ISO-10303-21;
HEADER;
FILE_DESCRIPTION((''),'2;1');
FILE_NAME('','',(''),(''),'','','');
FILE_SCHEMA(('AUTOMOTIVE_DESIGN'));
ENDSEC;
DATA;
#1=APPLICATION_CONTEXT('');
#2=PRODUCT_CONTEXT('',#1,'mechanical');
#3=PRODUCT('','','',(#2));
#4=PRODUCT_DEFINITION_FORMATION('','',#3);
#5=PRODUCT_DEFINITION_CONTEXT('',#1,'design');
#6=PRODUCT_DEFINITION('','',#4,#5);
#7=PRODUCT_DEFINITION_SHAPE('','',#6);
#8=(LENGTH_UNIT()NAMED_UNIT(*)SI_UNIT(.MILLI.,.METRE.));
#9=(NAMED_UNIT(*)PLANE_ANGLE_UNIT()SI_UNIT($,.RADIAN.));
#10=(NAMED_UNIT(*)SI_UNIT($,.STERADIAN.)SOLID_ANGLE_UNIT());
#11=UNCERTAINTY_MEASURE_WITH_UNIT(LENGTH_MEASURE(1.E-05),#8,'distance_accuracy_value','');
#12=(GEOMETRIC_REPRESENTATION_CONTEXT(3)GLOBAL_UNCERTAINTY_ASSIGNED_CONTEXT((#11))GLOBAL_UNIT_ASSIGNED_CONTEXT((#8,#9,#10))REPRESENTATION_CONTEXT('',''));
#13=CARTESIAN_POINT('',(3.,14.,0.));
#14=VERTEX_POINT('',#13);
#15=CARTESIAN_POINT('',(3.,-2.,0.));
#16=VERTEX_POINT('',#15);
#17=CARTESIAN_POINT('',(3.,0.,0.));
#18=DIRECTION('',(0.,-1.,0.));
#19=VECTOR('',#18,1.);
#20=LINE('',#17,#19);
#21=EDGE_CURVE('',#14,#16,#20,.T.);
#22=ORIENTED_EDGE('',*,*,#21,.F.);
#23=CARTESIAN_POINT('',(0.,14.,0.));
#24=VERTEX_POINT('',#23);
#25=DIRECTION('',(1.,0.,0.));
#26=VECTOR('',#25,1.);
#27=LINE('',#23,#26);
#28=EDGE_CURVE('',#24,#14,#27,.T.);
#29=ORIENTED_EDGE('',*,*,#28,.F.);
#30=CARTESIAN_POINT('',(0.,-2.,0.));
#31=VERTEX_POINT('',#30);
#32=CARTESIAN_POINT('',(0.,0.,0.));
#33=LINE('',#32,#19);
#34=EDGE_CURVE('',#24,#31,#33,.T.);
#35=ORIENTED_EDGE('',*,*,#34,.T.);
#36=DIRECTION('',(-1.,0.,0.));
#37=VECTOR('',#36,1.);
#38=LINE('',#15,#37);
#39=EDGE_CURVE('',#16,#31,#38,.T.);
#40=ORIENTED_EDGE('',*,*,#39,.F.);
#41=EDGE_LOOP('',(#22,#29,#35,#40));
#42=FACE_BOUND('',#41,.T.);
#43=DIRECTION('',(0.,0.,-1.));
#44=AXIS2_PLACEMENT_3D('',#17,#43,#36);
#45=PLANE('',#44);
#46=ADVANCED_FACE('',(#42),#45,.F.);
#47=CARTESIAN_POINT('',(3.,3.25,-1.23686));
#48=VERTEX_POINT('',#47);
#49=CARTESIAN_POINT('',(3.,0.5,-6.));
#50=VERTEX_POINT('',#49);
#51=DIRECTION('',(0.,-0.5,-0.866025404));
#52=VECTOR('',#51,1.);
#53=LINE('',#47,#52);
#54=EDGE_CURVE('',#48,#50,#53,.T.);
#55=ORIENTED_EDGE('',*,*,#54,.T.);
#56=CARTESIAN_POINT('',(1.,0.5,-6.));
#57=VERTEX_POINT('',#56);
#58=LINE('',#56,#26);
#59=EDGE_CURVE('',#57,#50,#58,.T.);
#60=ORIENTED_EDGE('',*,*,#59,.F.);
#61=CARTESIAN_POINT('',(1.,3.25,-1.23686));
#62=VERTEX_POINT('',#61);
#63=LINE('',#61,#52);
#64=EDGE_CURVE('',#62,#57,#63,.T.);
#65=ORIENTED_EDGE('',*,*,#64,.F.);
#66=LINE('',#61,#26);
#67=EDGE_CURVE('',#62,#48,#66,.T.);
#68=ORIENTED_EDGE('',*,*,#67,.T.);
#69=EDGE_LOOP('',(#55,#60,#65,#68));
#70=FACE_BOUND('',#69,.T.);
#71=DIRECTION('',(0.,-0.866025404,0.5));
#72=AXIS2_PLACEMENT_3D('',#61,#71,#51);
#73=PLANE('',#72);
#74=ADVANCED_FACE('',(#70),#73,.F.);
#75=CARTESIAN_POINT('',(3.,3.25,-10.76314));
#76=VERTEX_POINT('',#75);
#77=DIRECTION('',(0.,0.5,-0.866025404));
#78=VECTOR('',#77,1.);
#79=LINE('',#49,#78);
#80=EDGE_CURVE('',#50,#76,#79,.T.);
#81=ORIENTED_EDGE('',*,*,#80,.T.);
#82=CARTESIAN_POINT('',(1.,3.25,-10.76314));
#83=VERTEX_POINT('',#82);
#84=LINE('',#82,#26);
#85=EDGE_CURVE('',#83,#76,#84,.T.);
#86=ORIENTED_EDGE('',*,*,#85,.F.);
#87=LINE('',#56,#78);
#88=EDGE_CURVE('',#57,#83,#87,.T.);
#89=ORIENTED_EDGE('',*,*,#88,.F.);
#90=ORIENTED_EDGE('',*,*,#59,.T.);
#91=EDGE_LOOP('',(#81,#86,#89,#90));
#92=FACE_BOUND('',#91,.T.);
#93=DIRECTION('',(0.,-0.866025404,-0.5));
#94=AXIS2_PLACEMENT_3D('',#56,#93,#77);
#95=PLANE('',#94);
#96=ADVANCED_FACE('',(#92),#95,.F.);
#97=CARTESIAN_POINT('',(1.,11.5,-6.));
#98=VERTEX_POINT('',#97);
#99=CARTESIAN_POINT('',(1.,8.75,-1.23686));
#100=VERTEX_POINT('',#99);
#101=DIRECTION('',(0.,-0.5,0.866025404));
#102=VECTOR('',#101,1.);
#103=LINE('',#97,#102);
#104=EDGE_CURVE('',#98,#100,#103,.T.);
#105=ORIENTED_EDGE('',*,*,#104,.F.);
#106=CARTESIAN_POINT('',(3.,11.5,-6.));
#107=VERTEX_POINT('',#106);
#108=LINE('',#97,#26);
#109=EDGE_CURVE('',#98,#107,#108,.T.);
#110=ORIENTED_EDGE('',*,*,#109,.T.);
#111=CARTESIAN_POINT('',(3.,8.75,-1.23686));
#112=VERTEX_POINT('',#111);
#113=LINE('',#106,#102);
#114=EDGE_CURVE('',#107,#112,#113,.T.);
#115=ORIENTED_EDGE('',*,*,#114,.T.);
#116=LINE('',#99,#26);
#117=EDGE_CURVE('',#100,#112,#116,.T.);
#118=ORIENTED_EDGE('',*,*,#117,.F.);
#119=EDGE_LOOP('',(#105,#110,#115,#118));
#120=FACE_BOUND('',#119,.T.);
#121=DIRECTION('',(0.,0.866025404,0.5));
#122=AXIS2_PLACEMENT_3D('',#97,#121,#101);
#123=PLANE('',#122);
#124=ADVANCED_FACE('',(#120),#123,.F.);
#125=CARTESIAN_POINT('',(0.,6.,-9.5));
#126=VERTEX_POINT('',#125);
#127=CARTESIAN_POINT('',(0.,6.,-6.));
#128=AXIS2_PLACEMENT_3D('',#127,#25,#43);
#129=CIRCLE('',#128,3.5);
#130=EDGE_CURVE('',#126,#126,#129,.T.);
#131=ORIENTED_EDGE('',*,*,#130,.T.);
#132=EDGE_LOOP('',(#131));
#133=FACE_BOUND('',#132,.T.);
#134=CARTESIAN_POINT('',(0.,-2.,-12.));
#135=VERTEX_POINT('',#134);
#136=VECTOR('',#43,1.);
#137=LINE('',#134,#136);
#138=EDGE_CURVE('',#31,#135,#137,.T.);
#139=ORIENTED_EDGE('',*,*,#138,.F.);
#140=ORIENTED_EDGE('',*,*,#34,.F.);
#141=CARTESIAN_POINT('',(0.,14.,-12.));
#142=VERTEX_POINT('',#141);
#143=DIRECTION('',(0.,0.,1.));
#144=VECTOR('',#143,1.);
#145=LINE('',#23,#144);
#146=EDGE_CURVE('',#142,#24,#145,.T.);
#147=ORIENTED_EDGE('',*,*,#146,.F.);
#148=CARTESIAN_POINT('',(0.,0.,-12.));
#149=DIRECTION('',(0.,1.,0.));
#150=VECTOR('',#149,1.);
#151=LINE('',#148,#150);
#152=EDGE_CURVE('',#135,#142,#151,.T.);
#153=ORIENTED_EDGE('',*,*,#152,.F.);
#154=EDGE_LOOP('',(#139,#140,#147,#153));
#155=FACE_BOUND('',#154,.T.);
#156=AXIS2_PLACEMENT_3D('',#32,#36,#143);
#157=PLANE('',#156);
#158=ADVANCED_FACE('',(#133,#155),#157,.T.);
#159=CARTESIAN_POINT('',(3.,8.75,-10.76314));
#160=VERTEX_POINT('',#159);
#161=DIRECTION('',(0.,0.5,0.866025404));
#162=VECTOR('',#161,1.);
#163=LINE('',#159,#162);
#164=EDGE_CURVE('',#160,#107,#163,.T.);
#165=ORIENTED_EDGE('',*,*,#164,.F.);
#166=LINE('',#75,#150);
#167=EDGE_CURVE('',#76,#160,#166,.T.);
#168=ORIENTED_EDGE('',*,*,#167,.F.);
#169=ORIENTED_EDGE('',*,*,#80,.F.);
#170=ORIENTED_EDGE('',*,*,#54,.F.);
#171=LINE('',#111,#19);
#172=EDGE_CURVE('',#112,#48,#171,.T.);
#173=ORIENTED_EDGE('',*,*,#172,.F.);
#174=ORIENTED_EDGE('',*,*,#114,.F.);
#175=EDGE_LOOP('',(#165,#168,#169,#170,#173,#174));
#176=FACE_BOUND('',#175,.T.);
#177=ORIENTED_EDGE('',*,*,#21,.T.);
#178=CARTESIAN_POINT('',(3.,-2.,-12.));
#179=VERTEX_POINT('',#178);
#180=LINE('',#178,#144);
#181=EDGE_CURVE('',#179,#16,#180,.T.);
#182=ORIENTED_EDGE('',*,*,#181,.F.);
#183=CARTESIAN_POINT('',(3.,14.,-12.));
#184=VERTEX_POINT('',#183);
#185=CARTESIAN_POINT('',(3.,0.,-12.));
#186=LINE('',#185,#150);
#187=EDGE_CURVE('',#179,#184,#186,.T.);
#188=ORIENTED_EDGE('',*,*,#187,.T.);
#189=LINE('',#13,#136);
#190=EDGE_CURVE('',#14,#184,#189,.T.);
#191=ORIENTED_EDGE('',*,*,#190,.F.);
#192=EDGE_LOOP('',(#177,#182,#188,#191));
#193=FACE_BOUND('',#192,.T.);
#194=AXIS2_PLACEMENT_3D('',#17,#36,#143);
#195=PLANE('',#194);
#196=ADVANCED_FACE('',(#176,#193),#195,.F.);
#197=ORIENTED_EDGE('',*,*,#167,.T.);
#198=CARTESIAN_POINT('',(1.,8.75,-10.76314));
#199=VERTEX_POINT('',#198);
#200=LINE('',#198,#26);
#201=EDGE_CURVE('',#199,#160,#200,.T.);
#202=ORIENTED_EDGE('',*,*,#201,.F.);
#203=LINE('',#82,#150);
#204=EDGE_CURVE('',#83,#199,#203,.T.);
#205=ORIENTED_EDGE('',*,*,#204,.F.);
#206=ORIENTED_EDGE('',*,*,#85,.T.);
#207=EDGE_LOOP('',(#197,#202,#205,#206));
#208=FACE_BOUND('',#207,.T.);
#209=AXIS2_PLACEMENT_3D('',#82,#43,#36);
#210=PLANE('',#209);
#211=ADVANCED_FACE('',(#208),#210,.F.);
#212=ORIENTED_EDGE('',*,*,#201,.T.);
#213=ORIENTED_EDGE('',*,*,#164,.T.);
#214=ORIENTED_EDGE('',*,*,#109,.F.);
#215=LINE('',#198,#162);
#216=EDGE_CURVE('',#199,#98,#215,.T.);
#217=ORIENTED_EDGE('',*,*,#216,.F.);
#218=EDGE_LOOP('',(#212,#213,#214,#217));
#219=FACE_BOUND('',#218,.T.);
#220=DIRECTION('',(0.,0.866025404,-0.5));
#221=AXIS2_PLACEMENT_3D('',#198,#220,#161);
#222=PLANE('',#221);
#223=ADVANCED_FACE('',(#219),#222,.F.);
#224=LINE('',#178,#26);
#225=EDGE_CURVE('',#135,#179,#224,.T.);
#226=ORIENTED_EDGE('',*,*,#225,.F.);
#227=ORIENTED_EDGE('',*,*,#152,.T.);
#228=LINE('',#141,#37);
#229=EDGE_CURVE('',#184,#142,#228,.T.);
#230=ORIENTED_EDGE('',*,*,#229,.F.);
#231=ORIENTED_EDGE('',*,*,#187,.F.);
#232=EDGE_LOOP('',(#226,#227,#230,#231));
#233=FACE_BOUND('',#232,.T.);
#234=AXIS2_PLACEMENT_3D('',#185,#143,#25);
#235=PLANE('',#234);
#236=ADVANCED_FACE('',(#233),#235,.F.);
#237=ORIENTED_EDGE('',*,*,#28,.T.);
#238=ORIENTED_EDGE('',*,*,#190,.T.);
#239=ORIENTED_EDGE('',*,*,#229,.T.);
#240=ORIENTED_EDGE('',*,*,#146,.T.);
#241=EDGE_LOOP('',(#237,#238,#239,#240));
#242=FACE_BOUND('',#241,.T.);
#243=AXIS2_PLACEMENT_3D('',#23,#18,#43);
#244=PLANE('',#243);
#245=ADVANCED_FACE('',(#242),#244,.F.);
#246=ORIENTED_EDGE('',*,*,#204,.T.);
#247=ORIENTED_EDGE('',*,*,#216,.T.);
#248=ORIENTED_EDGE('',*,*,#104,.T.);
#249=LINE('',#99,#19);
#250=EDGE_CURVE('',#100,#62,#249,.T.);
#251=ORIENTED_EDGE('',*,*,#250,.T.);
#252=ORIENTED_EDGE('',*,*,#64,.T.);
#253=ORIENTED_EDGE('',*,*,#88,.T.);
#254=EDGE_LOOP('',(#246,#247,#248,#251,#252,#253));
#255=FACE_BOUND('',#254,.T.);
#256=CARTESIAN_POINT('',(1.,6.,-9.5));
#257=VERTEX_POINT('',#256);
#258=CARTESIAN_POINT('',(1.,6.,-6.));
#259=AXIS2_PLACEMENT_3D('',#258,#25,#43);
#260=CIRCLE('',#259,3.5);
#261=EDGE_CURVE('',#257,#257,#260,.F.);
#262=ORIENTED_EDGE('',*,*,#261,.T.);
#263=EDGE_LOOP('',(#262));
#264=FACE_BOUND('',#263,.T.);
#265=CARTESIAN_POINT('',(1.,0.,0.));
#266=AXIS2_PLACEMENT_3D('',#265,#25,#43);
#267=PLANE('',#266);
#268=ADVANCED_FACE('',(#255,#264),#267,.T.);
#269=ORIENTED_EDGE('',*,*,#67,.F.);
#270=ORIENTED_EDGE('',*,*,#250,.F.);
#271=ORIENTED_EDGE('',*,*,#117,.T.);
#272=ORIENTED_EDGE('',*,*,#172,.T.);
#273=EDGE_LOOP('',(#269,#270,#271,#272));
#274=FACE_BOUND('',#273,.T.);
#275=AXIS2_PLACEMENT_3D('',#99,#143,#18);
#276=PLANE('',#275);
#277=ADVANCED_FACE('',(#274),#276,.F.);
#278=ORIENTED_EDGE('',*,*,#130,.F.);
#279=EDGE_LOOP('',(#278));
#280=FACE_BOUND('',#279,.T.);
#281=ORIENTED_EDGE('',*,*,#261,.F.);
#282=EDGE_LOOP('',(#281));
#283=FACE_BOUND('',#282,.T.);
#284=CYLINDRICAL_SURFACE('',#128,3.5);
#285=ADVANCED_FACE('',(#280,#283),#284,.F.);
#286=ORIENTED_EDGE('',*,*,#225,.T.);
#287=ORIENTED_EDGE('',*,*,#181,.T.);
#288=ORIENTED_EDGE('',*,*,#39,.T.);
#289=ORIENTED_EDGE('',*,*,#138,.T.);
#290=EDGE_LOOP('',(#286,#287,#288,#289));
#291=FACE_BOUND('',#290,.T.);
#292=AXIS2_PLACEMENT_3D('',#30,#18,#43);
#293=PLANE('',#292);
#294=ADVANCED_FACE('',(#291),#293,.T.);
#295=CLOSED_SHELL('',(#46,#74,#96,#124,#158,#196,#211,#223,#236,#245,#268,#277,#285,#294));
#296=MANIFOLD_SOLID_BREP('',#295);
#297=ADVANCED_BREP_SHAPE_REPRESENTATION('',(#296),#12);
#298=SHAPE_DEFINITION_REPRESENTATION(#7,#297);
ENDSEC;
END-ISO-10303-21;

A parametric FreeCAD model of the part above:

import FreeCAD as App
import Part
import Sketcher
from FreeCAD import Vector
Q = App.Units.Quantity

doc = App.newDocument("Part")
body = doc.addObject("PartDesign::Body", "Body")

# Sketch on YZ plane
sketch1 = body.newObject("Sketcher::SketchObject", "Sketch")
sketch1.AttachmentSupport = (doc.getObject("YZ_Plane"), [""])
sketch1.MapMode = "FlatFace"
sketch1.addGeometry([
    Part.LineSegment(Vector(12, 0, 0), Vector(0, 0, 0)),
    Part.LineSegment(Vector(0, 0, 0), Vector(0, -12, 0)),
    Part.LineSegment(Vector(0, -12, 0), Vector(12, -12, 0)),
    Part.LineSegment(Vector(12, -12, 0), Vector(12, 0, 0)),
], False)
sketch1.addConstraint([
    Sketcher.Constraint("Coincident", 0, 2, 1, 1),
    Sketcher.Constraint("Coincident", 1, 2, 2, 1),
    Sketcher.Constraint("Coincident", 2, 2, 3, 1),
    Sketcher.Constraint("Coincident", 3, 2, 0, 1),
    Sketcher.Constraint("Horizontal", 0),
    Sketcher.Constraint("Vertical", 1),
    Sketcher.Constraint("Horizontal", 2),
    Sketcher.Constraint("Vertical", 3),
    Sketcher.Constraint("Coincident", 0, 2, -1, 1),
    Sketcher.Constraint("Equal", 2, 1),
    Sketcher.Constraint("DistanceX", 0, 2, 0, 1, 12.0),
])
pad1 = body.newObject("PartDesign::Pad", "Pad")
pad1.Profile = sketch1
pad1.Length = 3

# Sketch on YZ plane
sketch2 = body.newObject("Sketcher::SketchObject", "Sketch001")
sketch2.AttachmentSupport = (doc.getObject("YZ_Plane"), [""])
sketch2.MapMode = "FlatFace"
sketch2.AttachmentOffset = App.Placement(Vector(0, 0, 3), App.Rotation())
sketch2.addGeometry(Part.Circle(Vector(6, -6, 0), Vector(0, 0, 1), 3.5), False)
sketch2.addConstraint([
    Sketcher.Constraint("Diameter", 0, 7.0),
    Sketcher.Constraint("DistanceX", -1, 1, 0, 3, 6.0),
    Sketcher.Constraint("DistanceY", 0, 3, -1, 1, 6.0),
])
pocket1 = body.newObject("PartDesign::Pocket", "Pocket")
pocket1.Profile = sketch2
pocket1.Length = 3

# Sketch on YZ plane
sketch3 = body.newObject("Sketcher::SketchObject", "Sketch002")
sketch3.AttachmentSupport = (doc.getObject("YZ_Plane"), [""])
sketch3.MapMode = "FlatFace"
sketch3.AttachmentOffset = App.Placement(Vector(0, 0, 3), App.Rotation())
sketch3.addGeometry([
    Part.LineSegment(Vector(11.5, -6, 0), Vector(8.75, -1.23686, 0)),  # 0
    Part.LineSegment(Vector(8.75, -1.23686, 0), Vector(3.25, -1.23686, 0)),  # 1
    Part.LineSegment(Vector(3.25, -1.23686, 0), Vector(0.5, -6, 0)),  # 2
    Part.LineSegment(Vector(0.5, -6, 0), Vector(3.25, -10.76314, 0)),  # 3
    Part.LineSegment(Vector(3.25, -10.76314, 0), Vector(8.75, -10.76314, 0)),  # 4
    Part.LineSegment(Vector(8.75, -10.76314, 0), Vector(11.5, -6, 0)),  # 5
], False)
sketch3.addConstraint([
    Sketcher.Constraint("Coincident", 0, 2, 1, 1),
    Sketcher.Constraint("Coincident", 1, 2, 2, 1),
    Sketcher.Constraint("Coincident", 2, 2, 3, 1),
    Sketcher.Constraint("Coincident", 3, 2, 4, 1),
    Sketcher.Constraint("Coincident", 4, 2, 5, 1),
    Sketcher.Constraint("Coincident", 5, 2, 0, 1),
    Sketcher.Constraint("Horizontal", 1),
    Sketcher.Constraint("Horizontal", 4),
    Sketcher.Constraint("Parallel", 0, 3),
    Sketcher.Constraint("Parallel", 2, 5),
    Sketcher.Constraint("Horizontal", 2, 2, 5, 2),
    Sketcher.Constraint("Vertical", 1, 2, 3, 2),
    Sketcher.Constraint("Vertical", 0, 2, 4, 2),
    Sketcher.Constraint("Angle", 0, Q("120 deg")),
    Sketcher.Constraint("DistanceX", 1, 2, 1, 1, 5.5),
    Sketcher.Constraint("DistanceY", 2, 2, -1, 1, 6.0),
    Sketcher.Constraint("DistanceX", 2, 2, 5, 2, 11.0),
    Sketcher.Constraint("DistanceX", -1, 1, 2, 2, 0.5),
])
pocket2 = body.newObject("PartDesign::Pocket", "Pocket001")
pocket2.Profile = sketch3
pocket2.Length = 2

# Sketch on XZ plane
sketch4 = body.newObject("Sketcher::SketchObject", "Sketch003")
sketch4.AttachmentSupport = (doc.getObject("XZ_Plane"), [""])
sketch4.MapMode = "FlatFace"
sketch4.AttachmentOffset = App.Placement(Vector(0, 0, -12), App.Rotation())
sketch4.addGeometry([
    Part.LineSegment(Vector(0, -12, 0), Vector(0, 0, 0)),
    Part.LineSegment(Vector(0, 0, 0), Vector(3, 0, 0)),
    Part.LineSegment(Vector(3, 0, 0), Vector(3, -12, 0)),
    Part.LineSegment(Vector(3, -12, 0), Vector(0, -12, 0)),
], False)
sketch4.addConstraint([
    Sketcher.Constraint("Coincident", 0, 2, 1, 1),
    Sketcher.Constraint("Coincident", 1, 2, 2, 1),
    Sketcher.Constraint("Coincident", 2, 2, 3, 1),
    Sketcher.Constraint("Coincident", 3, 2, 0, 1),
    Sketcher.Constraint("Vertical", 0),
    Sketcher.Constraint("Horizontal", 1),
    Sketcher.Constraint("Vertical", 2),
    Sketcher.Constraint("Horizontal", 3),
    Sketcher.Constraint("Coincident", 0, 2, -1, 1),
    Sketcher.Constraint("DistanceX", 1, 1, 1, 2, 3.0),
    Sketcher.Constraint("DistanceY", 0, 1, 0, 2, 12.0),
])
pad2 = body.newObject("PartDesign::Pad", "Pad001")
pad2.Profile = sketch4
pad2.Length = 2
pad2.Reversed = True

# Sketch on XZ plane
sketch5 = body.newObject("Sketcher::SketchObject", "Sketch004")
sketch5.AttachmentSupport = (doc.getObject("XZ_Plane"), [""])
sketch5.MapMode = "FlatFace"
sketch5.addGeometry([
    Part.LineSegment(Vector(0, 0, 0), Vector(0, -12, 0)),
    Part.LineSegment(Vector(0, -12, 0), Vector(3, -12, 0)),
    Part.LineSegment(Vector(3, -12, 0), Vector(3, 0, 0)),
    Part.LineSegment(Vector(3, 0, 0), Vector(0, 0, 0)),
], False)
sketch5.addConstraint([
    Sketcher.Constraint("Coincident", 0, 2, 1, 1),
    Sketcher.Constraint("Coincident", 1, 2, 2, 1),
    Sketcher.Constraint("Coincident", 2, 2, 3, 1),
    Sketcher.Constraint("Coincident", 3, 2, 0, 1),
    Sketcher.Constraint("Vertical", 0),
    Sketcher.Constraint("Horizontal", 1),
    Sketcher.Constraint("Vertical", 2),
    Sketcher.Constraint("Horizontal", 3),
    Sketcher.Constraint("Coincident", 3, 2, -1, 1),
    Sketcher.Constraint("DistanceX", 1, 1, 1, 2, 3.0),
    Sketcher.Constraint("DistanceY", 0, 2, 0, 1, 12.0),
])
pad3 = body.newObject("PartDesign::Pad", "Pad002")
pad3.Profile = sketch5
pad3.Length = 2

doc.recompute()
